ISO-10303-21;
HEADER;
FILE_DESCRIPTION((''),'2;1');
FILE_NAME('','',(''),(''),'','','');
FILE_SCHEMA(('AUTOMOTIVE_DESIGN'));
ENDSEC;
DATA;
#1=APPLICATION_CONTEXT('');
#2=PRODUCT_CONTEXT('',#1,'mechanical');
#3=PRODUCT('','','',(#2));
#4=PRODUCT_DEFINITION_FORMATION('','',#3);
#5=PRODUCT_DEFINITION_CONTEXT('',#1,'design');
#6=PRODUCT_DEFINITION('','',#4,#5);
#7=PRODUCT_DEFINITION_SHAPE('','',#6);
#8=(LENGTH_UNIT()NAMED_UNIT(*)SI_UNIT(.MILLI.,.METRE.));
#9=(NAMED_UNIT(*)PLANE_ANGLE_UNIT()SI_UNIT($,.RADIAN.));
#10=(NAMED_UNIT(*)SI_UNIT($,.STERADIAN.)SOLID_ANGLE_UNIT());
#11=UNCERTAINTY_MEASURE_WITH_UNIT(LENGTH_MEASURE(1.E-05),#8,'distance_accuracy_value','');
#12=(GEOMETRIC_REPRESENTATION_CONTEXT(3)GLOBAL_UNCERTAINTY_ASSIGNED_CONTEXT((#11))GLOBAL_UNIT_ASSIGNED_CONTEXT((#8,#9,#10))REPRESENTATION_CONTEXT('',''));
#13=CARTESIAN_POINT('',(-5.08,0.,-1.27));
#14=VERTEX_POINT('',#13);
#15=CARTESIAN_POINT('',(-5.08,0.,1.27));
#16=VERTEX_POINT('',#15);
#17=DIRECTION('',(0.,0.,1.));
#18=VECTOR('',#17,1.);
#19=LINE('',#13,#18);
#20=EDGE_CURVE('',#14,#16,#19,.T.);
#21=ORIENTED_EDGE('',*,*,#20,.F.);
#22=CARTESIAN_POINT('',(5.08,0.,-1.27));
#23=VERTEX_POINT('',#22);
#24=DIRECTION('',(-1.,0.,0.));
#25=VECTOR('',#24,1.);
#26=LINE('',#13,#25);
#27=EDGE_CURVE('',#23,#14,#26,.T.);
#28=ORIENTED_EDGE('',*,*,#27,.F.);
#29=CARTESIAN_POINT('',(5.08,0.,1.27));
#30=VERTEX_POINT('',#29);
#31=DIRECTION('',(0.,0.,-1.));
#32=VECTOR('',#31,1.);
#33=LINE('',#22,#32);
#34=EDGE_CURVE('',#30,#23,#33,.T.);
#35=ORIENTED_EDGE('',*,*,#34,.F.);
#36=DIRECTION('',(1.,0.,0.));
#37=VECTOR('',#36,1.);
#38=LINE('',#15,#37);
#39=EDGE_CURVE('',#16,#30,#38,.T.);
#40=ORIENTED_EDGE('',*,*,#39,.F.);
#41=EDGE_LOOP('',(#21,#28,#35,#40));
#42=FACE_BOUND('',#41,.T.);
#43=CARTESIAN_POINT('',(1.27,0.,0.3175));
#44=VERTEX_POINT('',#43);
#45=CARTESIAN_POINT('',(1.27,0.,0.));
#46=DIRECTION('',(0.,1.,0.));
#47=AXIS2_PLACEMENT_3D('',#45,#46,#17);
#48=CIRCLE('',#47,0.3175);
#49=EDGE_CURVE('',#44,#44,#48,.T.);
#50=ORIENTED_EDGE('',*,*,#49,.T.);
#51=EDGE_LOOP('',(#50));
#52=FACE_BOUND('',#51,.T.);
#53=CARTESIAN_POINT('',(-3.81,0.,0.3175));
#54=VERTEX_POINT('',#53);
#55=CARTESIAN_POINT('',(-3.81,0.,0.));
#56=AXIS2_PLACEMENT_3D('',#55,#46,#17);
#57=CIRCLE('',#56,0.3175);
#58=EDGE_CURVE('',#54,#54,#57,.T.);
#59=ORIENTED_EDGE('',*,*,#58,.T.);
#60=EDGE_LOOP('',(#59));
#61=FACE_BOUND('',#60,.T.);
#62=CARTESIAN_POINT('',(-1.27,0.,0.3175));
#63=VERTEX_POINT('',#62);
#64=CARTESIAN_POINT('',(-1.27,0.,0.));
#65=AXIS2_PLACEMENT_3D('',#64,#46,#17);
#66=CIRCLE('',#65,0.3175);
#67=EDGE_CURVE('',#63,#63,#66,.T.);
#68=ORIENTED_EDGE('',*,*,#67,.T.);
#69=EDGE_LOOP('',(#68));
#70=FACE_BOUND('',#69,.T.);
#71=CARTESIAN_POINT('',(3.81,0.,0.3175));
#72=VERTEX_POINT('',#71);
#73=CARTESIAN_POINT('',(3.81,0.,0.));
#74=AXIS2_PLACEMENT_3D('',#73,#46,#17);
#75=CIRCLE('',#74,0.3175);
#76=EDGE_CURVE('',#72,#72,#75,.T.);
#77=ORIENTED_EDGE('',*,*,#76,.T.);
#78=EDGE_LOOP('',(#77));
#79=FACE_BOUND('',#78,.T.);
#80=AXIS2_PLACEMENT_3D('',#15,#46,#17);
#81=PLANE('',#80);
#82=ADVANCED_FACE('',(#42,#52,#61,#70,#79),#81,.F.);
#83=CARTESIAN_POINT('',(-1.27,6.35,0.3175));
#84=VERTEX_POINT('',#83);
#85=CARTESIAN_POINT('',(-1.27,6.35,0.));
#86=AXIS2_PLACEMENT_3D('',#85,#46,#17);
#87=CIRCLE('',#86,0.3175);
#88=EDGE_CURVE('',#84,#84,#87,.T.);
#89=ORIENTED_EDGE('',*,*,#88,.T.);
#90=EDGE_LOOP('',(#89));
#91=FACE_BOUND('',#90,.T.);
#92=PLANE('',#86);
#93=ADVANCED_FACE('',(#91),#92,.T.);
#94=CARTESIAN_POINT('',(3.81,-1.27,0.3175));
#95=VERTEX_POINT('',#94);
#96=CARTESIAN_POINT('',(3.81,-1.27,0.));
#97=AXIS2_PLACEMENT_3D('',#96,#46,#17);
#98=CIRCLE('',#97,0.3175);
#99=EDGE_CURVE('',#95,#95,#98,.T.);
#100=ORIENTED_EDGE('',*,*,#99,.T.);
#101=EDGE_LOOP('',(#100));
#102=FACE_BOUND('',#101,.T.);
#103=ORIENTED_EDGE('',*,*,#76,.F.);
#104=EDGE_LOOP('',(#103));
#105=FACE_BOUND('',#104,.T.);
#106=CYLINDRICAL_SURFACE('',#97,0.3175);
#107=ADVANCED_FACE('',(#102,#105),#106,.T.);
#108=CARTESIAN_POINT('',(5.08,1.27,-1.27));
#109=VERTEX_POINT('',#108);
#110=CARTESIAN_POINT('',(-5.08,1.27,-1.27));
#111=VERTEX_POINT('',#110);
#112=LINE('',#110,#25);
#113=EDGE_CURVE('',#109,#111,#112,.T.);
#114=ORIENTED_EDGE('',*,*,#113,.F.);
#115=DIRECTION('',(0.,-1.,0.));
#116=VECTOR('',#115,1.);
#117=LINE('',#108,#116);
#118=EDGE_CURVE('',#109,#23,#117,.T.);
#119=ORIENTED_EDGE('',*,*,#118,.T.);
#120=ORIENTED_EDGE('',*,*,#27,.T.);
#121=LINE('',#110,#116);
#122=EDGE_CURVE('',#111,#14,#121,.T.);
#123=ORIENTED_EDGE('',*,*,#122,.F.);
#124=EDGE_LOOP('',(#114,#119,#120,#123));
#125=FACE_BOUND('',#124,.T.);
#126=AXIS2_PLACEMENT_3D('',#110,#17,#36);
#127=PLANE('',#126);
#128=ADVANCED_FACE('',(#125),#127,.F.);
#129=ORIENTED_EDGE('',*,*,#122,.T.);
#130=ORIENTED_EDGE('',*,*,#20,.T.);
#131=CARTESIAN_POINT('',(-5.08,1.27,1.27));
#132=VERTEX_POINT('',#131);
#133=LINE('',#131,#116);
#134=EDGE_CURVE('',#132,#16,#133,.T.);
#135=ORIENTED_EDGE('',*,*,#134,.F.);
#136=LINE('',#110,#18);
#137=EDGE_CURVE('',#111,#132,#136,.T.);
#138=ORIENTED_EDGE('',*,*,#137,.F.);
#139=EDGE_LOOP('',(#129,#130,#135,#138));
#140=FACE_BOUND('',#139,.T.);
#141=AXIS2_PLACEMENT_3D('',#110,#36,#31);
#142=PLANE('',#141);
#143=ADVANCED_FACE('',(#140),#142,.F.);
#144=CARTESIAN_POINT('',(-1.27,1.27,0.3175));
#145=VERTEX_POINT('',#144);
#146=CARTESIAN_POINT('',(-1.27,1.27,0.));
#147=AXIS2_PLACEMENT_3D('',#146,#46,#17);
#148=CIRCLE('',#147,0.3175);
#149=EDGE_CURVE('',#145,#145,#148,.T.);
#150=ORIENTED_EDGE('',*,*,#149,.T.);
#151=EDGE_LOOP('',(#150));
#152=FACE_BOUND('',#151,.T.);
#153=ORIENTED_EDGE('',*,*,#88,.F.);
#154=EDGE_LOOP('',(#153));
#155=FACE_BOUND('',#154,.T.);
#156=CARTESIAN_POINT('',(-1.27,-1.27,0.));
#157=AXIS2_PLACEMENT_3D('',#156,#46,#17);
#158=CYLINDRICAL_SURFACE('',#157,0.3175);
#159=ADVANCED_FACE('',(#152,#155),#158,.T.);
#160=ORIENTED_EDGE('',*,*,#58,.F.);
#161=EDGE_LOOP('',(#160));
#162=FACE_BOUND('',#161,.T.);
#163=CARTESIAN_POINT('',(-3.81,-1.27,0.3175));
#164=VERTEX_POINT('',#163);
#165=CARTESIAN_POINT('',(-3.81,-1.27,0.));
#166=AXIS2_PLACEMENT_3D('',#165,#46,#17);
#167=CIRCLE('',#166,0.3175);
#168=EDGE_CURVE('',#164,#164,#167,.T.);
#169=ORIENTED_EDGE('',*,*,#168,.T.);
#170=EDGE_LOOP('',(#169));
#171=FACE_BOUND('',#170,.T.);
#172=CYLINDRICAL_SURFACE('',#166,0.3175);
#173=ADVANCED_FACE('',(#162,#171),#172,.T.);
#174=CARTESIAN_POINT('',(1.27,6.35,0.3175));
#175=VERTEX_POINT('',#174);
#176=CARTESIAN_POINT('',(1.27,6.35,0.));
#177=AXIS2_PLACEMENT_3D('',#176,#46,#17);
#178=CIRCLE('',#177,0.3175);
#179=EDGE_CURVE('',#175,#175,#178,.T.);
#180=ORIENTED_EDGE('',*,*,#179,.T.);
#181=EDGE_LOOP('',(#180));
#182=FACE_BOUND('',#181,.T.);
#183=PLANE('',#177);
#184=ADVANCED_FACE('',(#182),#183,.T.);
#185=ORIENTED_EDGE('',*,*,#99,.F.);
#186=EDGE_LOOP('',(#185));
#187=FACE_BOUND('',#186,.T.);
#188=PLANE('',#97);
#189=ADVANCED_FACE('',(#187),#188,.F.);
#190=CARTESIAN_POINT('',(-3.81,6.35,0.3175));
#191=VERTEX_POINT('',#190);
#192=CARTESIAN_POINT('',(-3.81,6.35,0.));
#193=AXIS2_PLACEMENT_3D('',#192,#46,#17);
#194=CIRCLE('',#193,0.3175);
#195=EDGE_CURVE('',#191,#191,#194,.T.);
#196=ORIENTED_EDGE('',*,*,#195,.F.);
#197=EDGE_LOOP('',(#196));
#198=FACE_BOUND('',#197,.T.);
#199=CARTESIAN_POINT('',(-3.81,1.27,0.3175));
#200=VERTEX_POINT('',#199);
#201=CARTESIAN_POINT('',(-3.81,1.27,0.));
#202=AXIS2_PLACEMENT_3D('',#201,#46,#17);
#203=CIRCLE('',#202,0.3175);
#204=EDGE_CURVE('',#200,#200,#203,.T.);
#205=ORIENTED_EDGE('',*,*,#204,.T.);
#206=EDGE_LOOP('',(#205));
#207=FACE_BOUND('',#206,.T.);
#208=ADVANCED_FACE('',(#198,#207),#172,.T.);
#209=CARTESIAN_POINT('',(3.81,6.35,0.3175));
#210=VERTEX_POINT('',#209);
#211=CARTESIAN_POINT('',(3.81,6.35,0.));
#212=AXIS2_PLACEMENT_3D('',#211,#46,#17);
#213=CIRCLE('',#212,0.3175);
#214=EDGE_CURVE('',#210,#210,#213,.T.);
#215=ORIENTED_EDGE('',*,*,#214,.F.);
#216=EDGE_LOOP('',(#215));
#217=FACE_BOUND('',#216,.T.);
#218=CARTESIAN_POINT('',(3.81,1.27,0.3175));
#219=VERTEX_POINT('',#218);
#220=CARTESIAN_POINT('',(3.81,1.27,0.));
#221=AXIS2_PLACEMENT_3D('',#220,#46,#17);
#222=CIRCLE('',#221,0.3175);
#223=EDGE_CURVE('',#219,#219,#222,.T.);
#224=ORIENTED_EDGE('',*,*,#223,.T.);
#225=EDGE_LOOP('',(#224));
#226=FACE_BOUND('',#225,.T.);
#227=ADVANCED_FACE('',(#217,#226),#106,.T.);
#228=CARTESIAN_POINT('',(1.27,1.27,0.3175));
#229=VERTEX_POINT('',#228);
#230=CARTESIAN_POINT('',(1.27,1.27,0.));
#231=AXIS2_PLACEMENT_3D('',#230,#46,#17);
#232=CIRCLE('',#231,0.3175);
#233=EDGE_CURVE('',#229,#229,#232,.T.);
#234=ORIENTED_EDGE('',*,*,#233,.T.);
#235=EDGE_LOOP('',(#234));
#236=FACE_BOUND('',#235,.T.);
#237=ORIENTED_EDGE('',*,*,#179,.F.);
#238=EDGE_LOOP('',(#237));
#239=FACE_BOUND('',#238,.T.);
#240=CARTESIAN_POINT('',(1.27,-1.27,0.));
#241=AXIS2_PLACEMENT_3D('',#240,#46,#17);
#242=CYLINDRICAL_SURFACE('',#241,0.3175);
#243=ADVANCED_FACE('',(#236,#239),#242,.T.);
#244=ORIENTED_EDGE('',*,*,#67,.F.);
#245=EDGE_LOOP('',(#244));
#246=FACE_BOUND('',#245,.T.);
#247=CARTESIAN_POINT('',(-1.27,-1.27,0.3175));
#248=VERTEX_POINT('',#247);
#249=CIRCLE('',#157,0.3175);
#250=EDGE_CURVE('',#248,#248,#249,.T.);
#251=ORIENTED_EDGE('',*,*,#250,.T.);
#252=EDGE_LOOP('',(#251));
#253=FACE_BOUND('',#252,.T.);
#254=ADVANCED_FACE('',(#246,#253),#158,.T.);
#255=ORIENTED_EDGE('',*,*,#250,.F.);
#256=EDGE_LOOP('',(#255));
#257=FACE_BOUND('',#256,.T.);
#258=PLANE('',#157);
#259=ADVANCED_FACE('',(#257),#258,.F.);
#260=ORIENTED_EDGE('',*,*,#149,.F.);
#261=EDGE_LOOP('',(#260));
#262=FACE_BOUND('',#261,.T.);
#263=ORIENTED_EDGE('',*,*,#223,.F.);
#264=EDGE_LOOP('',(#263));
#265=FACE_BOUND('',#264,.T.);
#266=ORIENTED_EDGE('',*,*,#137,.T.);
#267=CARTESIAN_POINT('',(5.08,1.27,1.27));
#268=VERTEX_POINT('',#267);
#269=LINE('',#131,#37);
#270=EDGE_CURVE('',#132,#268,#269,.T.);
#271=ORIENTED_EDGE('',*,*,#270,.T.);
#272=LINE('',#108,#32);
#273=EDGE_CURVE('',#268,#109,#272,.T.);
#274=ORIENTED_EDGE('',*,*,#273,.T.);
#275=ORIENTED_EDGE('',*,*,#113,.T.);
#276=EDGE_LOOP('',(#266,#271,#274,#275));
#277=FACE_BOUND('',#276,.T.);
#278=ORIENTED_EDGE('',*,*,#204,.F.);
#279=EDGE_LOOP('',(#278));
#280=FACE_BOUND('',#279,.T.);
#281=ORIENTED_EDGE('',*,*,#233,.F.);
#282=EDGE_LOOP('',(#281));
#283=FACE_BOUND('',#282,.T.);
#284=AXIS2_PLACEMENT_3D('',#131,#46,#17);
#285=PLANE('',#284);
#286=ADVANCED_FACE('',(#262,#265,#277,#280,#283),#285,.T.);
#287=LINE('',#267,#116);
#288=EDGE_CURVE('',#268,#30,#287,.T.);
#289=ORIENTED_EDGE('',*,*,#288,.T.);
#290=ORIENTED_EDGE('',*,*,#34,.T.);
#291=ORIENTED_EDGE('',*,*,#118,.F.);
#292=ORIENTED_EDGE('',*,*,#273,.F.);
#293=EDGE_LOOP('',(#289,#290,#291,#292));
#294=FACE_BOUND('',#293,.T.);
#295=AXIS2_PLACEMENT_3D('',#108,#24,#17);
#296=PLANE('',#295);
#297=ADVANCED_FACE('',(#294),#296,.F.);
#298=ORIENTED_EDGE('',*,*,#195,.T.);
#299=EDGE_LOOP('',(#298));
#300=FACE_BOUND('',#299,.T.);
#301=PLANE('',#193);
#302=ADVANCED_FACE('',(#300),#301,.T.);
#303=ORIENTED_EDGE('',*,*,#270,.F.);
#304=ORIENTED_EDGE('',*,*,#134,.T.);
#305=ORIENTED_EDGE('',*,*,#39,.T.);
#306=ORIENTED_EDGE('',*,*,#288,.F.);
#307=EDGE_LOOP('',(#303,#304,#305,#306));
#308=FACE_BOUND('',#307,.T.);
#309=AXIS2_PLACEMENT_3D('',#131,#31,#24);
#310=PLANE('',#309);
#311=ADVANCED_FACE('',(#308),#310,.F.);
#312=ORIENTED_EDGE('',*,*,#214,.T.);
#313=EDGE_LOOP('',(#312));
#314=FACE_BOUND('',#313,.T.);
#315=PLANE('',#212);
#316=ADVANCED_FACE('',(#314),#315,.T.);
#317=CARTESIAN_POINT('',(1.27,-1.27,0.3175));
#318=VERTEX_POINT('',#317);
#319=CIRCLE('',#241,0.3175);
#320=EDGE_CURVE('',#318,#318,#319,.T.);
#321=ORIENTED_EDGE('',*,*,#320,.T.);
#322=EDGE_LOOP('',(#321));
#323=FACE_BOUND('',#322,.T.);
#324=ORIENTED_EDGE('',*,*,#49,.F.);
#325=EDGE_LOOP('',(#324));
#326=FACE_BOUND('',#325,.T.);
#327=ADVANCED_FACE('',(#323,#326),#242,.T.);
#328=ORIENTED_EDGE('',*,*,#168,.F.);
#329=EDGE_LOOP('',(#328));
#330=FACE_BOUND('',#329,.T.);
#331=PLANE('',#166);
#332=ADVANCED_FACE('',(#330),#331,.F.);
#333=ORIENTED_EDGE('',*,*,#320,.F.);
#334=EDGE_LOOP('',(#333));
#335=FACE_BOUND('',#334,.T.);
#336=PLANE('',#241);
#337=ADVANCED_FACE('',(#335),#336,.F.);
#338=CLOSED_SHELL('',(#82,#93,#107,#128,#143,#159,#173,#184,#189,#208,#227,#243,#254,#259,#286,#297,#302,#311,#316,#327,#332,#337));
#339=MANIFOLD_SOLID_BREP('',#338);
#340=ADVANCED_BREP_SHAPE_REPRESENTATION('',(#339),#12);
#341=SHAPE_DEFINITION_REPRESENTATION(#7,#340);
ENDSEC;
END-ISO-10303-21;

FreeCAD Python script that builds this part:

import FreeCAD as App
import Part
import Sketcher

V = App.Vector
Q = App.Units.Quantity


def add_polygon(sketch, points):
    """Adds a closed chain of lines whose ends are joined by coincident constraints."""
    first, n = sketch.GeometryCount, len(points)
    for a, b in zip(points, points[1:] + points[:1]):
        sketch.addGeometry(Part.LineSegment(App.Vector(*a, 0), App.Vector(*b, 0)), False)
    for i in range(n):
        sketch.addConstraint(Sketcher.Constraint("Coincident", first + i, 2, first + (i + 1) % n, 1))

doc = App.newDocument("Part")
body = doc.addObject("PartDesign::Body", "Body")

# Sketch on XZ plane
sketch1 = body.newObject("Sketcher::SketchObject", "Sketch")
sketch1.AttachmentSupport = (doc.getObject("XZ_Plane"), [""])
sketch1.MapMode = "FlatFace"
add_polygon(sketch1, [(-5.1, -1.3), (-5.1, 1.3), (5.1, 1.3), (5.1, -1.3)])  # lines 0-3
sketch1.addConstraint([
    Sketcher.Constraint("Vertical", 0),
    Sketcher.Constraint("Horizontal", 1),
    Sketcher.Constraint("Vertical", 2),
    Sketcher.Constraint("Horizontal", 3),
    Sketcher.Constraint("Symmetric", 0, 2, 2, 2, -1, 1),
    Sketcher.Constraint("DistanceX", 1, 1, 1, 2, Q("0.4 in")),
    Sketcher.Constraint("DistanceY", 0, 1, 0, 2, Q("0.1 in")),
])
pad1 = body.newObject("PartDesign::Pad", "Pad")
pad1.Profile = sketch1
pad1.Length = Q("0.05 in")
pad1.Reversed = True

# Sketch on XZ plane
sketch2 = body.newObject("Sketcher::SketchObject", "Sketch001")
sketch2.AttachmentSupport = (doc.getObject("XZ_Plane"), [""])
sketch2.MapMode = "FlatFace"
sketch2.AttachmentOffset = App.Placement(V(0, 0, -0.05 * 25.4), App.Rotation())
sketch2.addGeometry([
    Part.Circle(V(-1.27, 0, 0), V(0, 0, 1), 0.32),
    Part.Circle(V(-3.81, 0, 0), V(0, 0, 1), 0.32),
    Part.Circle(V(1.27, 0, 0), V(0, 0, 1), 0.32),
    Part.Circle(V(3.81, 0, 0), V(0, 0, 1), 0.32),
], False)
sketch2.addConstraint([
    Sketcher.Constraint("Equal", 0, 1),
    Sketcher.Constraint("Equal", 1, 2),
    Sketcher.Constraint("Equal", 2, 3),
    Sketcher.Constraint("Symmetric", 0, 3, 2, 3, -1, 1),
    Sketcher.Constraint("Symmetric", 1, 3, 3, 3, -1, 1),
    Sketcher.Constraint("PointOnObject", 0, 3, -1),
    Sketcher.Constraint("PointOnObject", 1, 3, -1),
    Sketcher.Constraint("Diameter", 0, Q("0.025 in")),
    Sketcher.Constraint("DistanceX", 1, 3, 0, 3, Q("0.1 in")),
    Sketcher.Constraint("DistanceX", 0, 3, 2, 3, Q("0.1 in")),
])
pad2 = body.newObject("PartDesign::Pad", "Pad001")
pad2.Profile = sketch2
pad2.Type = "TwoLengths"
pad2.Length = Q("0.2 in")
pad2.Length2 = Q("0.1 in")
pad2.Reversed = True

doc.recompute()
